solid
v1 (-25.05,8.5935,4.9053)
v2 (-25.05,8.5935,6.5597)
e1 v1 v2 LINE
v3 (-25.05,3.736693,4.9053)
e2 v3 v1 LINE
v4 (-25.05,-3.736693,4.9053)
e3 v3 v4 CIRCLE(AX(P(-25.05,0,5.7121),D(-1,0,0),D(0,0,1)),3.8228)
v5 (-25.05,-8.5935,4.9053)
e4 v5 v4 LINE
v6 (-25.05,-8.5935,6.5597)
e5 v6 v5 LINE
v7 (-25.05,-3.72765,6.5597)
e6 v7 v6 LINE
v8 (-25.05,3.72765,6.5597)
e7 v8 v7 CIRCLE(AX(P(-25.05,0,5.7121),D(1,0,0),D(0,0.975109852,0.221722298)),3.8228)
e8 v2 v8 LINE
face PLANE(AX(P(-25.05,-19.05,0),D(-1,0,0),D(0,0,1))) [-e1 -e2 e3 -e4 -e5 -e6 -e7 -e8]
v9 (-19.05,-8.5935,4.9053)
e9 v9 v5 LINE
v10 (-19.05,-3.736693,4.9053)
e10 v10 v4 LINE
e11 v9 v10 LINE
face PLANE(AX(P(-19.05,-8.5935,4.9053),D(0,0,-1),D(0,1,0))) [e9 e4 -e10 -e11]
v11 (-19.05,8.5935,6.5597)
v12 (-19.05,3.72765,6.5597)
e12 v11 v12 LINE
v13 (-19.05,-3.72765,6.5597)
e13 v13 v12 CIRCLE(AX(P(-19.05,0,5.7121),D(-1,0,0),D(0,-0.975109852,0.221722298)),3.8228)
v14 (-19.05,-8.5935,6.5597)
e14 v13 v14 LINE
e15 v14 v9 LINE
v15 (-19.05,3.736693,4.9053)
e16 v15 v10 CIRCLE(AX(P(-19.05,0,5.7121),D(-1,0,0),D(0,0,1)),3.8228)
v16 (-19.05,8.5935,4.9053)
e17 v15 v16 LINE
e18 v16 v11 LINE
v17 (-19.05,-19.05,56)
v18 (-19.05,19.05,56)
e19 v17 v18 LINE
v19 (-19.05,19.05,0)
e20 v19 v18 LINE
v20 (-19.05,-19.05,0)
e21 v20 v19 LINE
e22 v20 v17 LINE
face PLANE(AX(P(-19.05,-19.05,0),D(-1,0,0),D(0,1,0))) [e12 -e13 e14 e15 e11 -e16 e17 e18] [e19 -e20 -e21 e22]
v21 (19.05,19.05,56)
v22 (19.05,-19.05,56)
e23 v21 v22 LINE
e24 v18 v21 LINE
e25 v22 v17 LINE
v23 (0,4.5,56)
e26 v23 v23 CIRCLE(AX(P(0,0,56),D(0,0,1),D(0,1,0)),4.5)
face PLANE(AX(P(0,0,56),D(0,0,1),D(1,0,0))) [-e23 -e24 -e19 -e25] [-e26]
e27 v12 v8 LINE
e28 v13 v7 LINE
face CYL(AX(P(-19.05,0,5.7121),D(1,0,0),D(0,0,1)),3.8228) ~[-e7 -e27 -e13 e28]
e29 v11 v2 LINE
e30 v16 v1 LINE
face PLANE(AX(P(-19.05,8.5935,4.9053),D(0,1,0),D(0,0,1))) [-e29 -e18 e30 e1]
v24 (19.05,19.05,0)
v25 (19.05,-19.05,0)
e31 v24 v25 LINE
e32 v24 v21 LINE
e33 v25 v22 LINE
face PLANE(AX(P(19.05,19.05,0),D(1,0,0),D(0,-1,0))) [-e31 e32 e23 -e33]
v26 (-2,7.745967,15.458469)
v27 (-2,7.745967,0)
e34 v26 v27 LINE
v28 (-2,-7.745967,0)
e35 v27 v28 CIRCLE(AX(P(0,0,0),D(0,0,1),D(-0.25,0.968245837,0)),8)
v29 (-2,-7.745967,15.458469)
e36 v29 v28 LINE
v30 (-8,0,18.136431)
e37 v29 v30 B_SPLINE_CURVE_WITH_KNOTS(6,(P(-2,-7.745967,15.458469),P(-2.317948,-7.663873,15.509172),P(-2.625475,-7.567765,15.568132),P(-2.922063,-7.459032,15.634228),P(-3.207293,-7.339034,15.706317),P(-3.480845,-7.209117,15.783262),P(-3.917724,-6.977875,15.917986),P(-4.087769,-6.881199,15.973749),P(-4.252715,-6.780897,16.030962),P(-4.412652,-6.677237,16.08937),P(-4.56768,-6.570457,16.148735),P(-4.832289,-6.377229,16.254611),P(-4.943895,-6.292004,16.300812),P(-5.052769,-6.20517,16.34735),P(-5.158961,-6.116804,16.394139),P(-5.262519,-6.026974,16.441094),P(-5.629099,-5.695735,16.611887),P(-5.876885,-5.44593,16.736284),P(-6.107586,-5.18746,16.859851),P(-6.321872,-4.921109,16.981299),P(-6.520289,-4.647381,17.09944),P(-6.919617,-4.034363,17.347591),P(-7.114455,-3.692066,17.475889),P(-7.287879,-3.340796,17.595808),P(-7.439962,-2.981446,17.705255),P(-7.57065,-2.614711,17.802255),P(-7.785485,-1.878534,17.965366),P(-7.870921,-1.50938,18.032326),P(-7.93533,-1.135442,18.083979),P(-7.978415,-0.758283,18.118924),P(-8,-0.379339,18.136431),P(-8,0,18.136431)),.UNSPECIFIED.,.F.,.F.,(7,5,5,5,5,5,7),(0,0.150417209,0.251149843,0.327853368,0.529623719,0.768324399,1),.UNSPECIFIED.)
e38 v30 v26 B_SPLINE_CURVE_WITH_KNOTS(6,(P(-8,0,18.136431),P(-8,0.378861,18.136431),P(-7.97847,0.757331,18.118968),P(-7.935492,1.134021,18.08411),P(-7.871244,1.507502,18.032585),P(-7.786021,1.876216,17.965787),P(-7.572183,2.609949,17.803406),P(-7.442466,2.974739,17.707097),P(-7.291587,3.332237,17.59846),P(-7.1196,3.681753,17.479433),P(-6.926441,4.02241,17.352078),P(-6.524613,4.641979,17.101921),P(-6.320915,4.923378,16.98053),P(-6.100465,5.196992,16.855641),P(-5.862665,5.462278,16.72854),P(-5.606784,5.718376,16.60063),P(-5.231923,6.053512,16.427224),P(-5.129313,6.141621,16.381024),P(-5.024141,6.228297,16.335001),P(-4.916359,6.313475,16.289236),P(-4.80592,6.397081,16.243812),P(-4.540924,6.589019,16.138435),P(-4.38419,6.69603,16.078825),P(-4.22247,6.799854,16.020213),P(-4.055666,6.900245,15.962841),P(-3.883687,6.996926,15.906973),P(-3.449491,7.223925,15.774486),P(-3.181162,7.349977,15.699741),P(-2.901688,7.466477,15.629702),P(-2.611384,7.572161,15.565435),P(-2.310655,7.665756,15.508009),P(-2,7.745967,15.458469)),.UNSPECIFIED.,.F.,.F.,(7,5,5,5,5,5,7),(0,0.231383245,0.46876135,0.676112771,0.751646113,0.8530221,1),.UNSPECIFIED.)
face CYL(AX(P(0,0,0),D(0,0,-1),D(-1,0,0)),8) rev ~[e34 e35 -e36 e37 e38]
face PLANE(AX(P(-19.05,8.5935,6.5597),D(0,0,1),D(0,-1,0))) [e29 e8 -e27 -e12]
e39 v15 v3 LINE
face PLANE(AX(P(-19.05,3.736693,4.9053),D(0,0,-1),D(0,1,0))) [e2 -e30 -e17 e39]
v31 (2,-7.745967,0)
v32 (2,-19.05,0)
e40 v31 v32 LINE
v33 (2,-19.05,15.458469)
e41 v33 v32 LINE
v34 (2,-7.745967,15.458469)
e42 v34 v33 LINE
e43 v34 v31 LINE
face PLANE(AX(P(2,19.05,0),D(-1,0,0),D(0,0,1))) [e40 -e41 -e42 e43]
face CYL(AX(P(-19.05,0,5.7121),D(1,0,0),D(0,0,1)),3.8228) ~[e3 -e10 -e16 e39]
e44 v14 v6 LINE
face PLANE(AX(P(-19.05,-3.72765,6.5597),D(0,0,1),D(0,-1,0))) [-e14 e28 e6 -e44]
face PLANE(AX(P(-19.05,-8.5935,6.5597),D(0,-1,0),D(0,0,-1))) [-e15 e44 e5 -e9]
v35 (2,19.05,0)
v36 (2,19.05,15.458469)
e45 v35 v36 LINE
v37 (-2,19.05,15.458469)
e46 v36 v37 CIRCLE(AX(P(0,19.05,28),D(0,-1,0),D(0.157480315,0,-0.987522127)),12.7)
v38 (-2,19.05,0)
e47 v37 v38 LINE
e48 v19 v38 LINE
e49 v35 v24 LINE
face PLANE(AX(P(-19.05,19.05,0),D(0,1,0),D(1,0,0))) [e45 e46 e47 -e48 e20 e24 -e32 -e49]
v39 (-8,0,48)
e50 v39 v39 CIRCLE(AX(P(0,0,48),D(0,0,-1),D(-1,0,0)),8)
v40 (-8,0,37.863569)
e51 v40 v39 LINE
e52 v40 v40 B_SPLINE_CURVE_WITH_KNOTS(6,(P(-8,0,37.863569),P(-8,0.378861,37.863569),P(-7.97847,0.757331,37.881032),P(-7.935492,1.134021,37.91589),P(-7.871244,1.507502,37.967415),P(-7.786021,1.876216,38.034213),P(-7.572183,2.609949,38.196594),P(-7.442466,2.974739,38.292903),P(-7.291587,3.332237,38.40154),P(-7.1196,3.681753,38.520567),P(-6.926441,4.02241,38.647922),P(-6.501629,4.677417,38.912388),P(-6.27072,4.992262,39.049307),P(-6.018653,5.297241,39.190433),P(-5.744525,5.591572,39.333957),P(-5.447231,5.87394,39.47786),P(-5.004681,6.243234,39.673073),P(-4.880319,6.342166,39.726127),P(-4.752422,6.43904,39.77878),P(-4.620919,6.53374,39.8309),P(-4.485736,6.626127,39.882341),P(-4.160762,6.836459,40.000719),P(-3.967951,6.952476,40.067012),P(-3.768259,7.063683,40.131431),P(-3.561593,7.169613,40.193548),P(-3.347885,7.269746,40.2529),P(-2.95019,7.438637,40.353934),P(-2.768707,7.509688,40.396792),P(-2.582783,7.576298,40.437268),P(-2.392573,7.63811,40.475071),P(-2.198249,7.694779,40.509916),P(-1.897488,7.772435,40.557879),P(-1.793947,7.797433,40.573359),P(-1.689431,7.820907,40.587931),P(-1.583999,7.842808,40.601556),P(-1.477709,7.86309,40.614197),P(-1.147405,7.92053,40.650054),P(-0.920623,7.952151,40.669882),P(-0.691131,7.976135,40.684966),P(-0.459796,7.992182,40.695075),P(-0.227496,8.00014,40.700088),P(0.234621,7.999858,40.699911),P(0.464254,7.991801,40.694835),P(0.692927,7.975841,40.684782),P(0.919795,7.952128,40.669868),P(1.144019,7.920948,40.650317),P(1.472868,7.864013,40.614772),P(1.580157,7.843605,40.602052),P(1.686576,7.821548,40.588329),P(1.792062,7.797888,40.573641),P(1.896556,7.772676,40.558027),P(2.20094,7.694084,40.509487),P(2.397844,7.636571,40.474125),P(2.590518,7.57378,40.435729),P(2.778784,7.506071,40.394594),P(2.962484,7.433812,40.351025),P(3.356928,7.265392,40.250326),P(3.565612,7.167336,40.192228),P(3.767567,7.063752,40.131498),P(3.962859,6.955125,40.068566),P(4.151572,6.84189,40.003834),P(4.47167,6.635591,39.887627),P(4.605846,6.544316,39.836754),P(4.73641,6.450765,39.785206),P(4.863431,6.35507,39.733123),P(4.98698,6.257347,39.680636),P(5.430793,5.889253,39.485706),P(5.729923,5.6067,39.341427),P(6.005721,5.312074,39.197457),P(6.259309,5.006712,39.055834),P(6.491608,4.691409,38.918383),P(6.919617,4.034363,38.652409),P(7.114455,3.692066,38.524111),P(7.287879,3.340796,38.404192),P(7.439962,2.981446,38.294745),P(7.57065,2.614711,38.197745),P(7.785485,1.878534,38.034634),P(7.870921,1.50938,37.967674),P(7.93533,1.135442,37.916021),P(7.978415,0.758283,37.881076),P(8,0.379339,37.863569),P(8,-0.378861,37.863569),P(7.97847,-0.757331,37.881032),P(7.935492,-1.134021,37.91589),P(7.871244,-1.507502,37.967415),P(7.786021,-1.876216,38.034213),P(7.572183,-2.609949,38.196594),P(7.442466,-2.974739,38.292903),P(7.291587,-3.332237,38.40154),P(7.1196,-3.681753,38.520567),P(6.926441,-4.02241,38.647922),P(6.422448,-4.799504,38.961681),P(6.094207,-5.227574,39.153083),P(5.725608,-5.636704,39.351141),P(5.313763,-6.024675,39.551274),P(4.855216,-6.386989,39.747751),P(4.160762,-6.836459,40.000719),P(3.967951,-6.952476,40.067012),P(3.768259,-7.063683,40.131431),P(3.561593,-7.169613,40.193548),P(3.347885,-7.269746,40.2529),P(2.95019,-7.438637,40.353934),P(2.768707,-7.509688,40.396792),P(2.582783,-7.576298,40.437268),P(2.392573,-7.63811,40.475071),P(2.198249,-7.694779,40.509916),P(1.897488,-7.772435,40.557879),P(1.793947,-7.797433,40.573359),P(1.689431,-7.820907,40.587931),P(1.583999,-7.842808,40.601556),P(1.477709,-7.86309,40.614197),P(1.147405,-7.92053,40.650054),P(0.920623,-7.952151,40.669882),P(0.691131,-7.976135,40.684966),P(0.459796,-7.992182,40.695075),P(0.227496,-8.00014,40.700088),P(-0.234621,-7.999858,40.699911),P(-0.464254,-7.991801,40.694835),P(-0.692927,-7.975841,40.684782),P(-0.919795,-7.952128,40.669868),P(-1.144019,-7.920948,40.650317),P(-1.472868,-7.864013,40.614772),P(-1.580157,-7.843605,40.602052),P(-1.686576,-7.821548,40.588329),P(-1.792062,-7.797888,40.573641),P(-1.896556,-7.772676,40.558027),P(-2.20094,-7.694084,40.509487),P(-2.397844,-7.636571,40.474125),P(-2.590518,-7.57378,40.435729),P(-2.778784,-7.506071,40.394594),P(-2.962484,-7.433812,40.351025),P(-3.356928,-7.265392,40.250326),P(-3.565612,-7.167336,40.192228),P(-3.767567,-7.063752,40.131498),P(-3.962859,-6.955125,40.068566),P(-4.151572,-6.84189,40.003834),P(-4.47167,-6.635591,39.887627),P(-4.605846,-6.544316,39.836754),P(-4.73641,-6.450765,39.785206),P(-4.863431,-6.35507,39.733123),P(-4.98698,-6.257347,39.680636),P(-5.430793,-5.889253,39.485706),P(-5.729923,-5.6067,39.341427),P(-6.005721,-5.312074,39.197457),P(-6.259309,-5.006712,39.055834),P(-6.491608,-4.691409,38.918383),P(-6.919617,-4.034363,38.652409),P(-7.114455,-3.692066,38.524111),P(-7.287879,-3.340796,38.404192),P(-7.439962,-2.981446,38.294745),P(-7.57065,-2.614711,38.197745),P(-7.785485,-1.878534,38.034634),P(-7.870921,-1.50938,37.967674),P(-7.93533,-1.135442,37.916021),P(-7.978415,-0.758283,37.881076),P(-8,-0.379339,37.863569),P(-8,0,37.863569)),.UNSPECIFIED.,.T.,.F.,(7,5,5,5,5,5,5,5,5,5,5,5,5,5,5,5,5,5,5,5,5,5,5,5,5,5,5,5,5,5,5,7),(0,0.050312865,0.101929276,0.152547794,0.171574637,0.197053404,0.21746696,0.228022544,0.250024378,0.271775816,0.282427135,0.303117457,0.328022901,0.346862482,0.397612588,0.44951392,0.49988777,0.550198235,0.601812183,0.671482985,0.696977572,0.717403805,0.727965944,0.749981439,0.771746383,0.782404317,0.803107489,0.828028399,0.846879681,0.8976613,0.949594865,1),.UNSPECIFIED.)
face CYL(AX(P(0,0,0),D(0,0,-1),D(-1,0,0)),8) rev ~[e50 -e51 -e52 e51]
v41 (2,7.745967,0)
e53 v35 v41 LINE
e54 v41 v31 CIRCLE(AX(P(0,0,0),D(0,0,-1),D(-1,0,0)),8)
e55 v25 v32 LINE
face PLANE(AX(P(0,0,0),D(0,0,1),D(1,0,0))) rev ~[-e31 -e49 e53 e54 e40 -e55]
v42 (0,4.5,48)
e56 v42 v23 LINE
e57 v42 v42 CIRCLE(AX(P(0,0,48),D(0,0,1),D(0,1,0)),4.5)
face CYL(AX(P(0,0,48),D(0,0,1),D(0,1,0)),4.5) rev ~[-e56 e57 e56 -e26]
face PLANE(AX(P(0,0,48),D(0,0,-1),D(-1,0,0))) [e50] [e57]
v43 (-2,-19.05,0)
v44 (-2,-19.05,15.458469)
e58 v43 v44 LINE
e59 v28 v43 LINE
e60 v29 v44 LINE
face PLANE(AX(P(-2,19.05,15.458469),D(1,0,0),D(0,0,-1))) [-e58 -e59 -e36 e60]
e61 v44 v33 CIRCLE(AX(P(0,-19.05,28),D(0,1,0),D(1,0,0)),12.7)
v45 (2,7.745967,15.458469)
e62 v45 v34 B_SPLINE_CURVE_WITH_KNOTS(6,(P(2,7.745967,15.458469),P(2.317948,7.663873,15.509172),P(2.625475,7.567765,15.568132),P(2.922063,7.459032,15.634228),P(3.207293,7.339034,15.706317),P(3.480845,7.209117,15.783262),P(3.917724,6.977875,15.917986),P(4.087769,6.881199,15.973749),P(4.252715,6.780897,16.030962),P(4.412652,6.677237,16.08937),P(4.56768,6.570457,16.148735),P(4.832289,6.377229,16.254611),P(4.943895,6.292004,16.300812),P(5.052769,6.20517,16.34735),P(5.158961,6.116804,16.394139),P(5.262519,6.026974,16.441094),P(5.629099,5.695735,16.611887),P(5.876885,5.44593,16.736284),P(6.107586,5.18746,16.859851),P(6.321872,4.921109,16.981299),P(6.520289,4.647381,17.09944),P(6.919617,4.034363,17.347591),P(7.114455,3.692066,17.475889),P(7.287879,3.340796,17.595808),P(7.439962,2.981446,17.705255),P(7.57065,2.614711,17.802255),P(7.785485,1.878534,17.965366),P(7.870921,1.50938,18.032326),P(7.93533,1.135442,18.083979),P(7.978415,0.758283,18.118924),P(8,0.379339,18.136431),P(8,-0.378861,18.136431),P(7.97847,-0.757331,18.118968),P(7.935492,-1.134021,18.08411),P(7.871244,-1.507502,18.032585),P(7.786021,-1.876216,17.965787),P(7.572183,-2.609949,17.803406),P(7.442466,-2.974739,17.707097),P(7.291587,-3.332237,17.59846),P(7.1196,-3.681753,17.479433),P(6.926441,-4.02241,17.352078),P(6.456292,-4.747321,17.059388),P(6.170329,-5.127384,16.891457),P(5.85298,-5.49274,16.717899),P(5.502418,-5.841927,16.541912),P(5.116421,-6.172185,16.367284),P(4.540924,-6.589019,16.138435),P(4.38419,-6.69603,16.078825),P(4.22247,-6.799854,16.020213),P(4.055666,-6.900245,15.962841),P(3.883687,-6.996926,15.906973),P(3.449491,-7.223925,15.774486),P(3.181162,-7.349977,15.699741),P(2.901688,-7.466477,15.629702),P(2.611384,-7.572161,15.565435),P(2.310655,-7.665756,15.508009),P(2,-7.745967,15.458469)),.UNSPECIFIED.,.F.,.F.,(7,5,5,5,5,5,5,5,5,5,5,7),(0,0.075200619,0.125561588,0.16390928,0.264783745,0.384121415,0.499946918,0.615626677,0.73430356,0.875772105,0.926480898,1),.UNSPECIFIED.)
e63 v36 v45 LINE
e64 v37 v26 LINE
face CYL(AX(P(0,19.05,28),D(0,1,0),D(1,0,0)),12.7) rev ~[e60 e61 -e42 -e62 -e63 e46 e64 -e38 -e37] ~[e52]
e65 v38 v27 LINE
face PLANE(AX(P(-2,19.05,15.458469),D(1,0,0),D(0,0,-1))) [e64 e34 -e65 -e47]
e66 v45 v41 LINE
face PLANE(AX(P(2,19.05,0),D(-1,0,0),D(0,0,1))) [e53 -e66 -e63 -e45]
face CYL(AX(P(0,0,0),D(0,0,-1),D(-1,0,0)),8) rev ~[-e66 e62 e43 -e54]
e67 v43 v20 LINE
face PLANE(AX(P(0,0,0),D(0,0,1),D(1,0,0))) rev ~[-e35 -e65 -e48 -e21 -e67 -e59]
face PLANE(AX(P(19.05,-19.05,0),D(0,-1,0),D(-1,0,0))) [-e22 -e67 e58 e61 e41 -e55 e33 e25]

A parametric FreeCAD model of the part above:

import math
import FreeCAD as App
import Part
import Sketcher
from FreeCAD import Vector
Q = App.Units.Quantity

doc = App.newDocument("Part")
params = doc.addObject("Spreadsheet::Sheet", "Params")
for row, (alias, value) in enumerate([
    ("sketch1_width", "38.1 mm"),
    ("pad1_length", "56 mm"),
    ("sketch2_radius", "12.7 mm"),
    ("sketch2_width", "4 mm"),
    ("sketch3_diameter", "9 mm"),
    ("hole_diameter", "9 mm"),
    ("sketch4_diameter", "16 mm"),
    ("pocket2_length", "48 mm"),
    ("pad2_length", "6 mm"),
], start=1):
    params.set(f"A{row}", alias)
    params.set(f"B{row}", "=" + value)
    params.setAlias(f"B{row}", alias)

body = doc.addObject("PartDesign::Body", "Body")

sketch1 = doc.addObject("Sketcher::SketchObject", "Sketch")
body.addObject(sketch1)
sketch1.AttachmentSupport = (doc.XY_Plane, [""])
sketch1.MapMode = "FlatFace"
sketch1.addGeometry([
    Part.LineSegment(Vector(19.05, 19.05, 0), Vector(-19.05, 19.05, 0)),
    Part.LineSegment(Vector(-19.05, 19.05, 0), Vector(-19.05, -19.05, 0)),
    Part.LineSegment(Vector(-19.05, -19.05, 0), Vector(19.05, -19.05, 0)),
    Part.LineSegment(Vector(19.05, -19.05, 0), Vector(19.05, 19.05, 0)),
], False)
sketch1.addConstraint([
    Sketcher.Constraint("Coincident", 0, 2, 1, 1),
    Sketcher.Constraint("Coincident", 1, 2, 2, 1),
    Sketcher.Constraint("Coincident", 2, 2, 3, 1),
    Sketcher.Constraint("Coincident", 3, 2, 0, 1),
    Sketcher.Constraint("Horizontal", 0),
    Sketcher.Constraint("Vertical", 1),
    Sketcher.Constraint("Horizontal", 2),
    Sketcher.Constraint("Vertical", 3),
    Sketcher.Constraint("Symmetric", 0, 2, 2, 2, -1, 1),
    Sketcher.Constraint("Equal", 2, 1),
    Sketcher.Constraint("DistanceX", 0, 2, 0, 1, Q("38.1 mm")),
])
sketch1.setExpression("Constraints[10]", "Params.sketch1_width")
pad1 = doc.addObject("PartDesign::Pad", "Pad")
body.addObject(pad1)
pad1.Profile = sketch1
pad1.setExpression("Length", "Params.pad1_length")

sketch2 = doc.addObject("Sketcher::SketchObject", "Sketch001")
body.addObject(sketch2)
sketch2.AttachmentSupport = (doc.XZ_Plane, [""])
sketch2.MapMode = "FlatFace"
sketch2.AttachmentOffset = App.Placement(Vector(0, 0, -19.05), App.Rotation())
sketch2.addGeometry([
    Part.ArcOfCircle(Part.Circle(Vector(0, 28, 0), Vector(0, 0, 1), 12.7), math.radians(-80.939325), math.radians(260.939325)),
    Part.LineSegment(Vector(2, 15.458469, 0), Vector(2, 0, 0)),
    Part.LineSegment(Vector(2, 0, 0), Vector(-2, 0, 0)),
    Part.LineSegment(Vector(-2, 0, 0), Vector(-2, 15.458469, 0)),
], False)
sketch2.addConstraint([
    Sketcher.Constraint("Coincident", 0, 1, 1, 1),
    Sketcher.Constraint("Coincident", 1, 2, 2, 1),
    Sketcher.Constraint("Coincident", 2, 2, 3, 1),
    Sketcher.Constraint("Coincident", 3, 2, 0, 2),
    Sketcher.Constraint("Vertical", 1),
    Sketcher.Constraint("Horizontal", 2),
    Sketcher.Constraint("Vertical", 3),
    Sketcher.Constraint("Symmetric", 1, 2, 2, 2, -1, 1),
    Sketcher.Constraint("PointOnObject", 0, 3, -2),
    Sketcher.Constraint("Radius", 0, Q("12.7 mm")),
    Sketcher.Constraint("DistanceX", 2, 2, 2, 1, Q("4 mm")),
    Sketcher.Constraint("DistanceY", -1, 1, 0, 3, Q("28 mm")),
])
sketch2.setExpression("Constraints[9]", "Params.sketch2_radius")
sketch2.setExpression("Constraints[10]", "Params.sketch2_width")
pocket1 = doc.addObject("PartDesign::Pocket", "Pocket")
body.addObject(pocket1)
pocket1.Profile = sketch2
pocket1.Type = "ThroughAll"
pocket1.Reversed = True

sketch3 = doc.addObject("Sketcher::SketchObject", "Sketch002")
body.addObject(sketch3)
sketch3.AttachmentSupport = (doc.XY_Plane, [""])
sketch3.MapMode = "FlatFace"
sketch3.AttachmentOffset = App.Placement(Vector(0, 0, 48), App.Rotation())
sketch3.addGeometry(Part.Circle(Vector(0, 0, 0), Vector(0, 0, 1), 4.5), False)
sketch3.addConstraint([
    Sketcher.Constraint("Coincident", 0, 3, -1, 1),
    Sketcher.Constraint("Diameter", 0, Q("9 mm")),
])
sketch3.setExpression("Constraints[1]", "Params.sketch3_diameter")
doc.recompute()
hole = doc.addObject("PartDesign::Hole", "Hole")
body.addObject(hole)
hole.Profile = sketch3
hole.ThreadType = "None"
hole.setExpression("Diameter", "Params.hole_diameter")
hole.DepthType = "ThroughAll"
hole.Reversed = True

sketch4 = doc.addObject("Sketcher::SketchObject", "Sketch003")
body.addObject(sketch4)
sketch4.AttachmentSupport = (doc.XY_Plane, [""])
sketch4.MapMode = "FlatFace"
sketch4.addGeometry(Part.Circle(Vector(0, 0, 0), Vector(0, 0, 1), 8), False)
sketch4.addConstraint([
    Sketcher.Constraint("Coincident", 0, 3, -1, 1),
    Sketcher.Constraint("Diameter", 0, Q("16 mm")),
])
sketch4.setExpression("Constraints[1]", "Params.sketch4_diameter")
pocket2 = doc.addObject("PartDesign::Pocket", "Pocket001")
body.addObject(pocket2)
pocket2.Profile = sketch4
pocket2.setExpression("Length", "Params.pocket2_length")
pocket2.Reversed = True

sketch5 = doc.addObject("Sketcher::SketchObject", "Sketch004")
body.addObject(sketch5)
sketch5.AttachmentSupport = (doc.YZ_Plane, [""])
sketch5.MapMode = "FlatFace"
sketch5.AttachmentOffset = App.Placement(Vector(0, 0, -19.05), App.Rotation())
sketch5.addGeometry([
    Part.ArcOfCircle(Part.Circle(Vector(0, 5.7121, 0), Vector(0, 0, 1), 3.8228), math.radians(12.810212), math.radians(167.189788)),
    Part.LineSegment(Vector(3.72765, 6.5597, 0), Vector(8.5935, 6.5597, 0)),
    Part.LineSegment(Vector(8.5935, 6.5597, 0), Vector(8.5935, 4.9053, 0)),
    Part.LineSegment(Vector(8.5935, 4.9053, 0), Vector(3.736693, 4.9053, 0)),
    Part.ArcOfCircle(Part.Circle(Vector(0, 5.7121, 0), Vector(0, 0, 1), 3.8228), math.radians(-167.816138), math.radians(-12.183862)),
    Part.LineSegment(Vector(-3.736693, 4.9053, 0), Vector(-8.5935, 4.9053, 0)),
    Part.LineSegment(Vector(-8.5935, 4.9053, 0), Vector(-8.5935, 6.5597, 0)),
    Part.LineSegment(Vector(-8.5935, 6.5597, 0), Vector(-3.72765, 6.5597, 0)),
], False)
sketch5.addConstraint([
    Sketcher.Constraint("Coincident", 0, 1, 1, 1),
    Sketcher.Constraint("Coincident", 1, 2, 2, 1),
    Sketcher.Constraint("Coincident", 2, 2, 3, 1),
    Sketcher.Constraint("Coincident", 3, 2, 4, 2),
    Sketcher.Constraint("Coincident", 4, 1, 5, 1),
    Sketcher.Constraint("Coincident", 5, 2, 6, 1),
    Sketcher.Constraint("Coincident", 6, 2, 7, 1),
    Sketcher.Constraint("Coincident", 7, 2, 0, 2),
    Sketcher.Constraint("Horizontal", 1),
    Sketcher.Constraint("Vertical", 2),
    Sketcher.Constraint("Horizontal", 3),
    Sketcher.Constraint("Horizontal", 5),
    Sketcher.Constraint("Vertical", 6),
    Sketcher.Constraint("Horizontal", 7),
    Sketcher.Constraint("Coincident", 4, 3, 0, 3),
    Sketcher.Constraint("Equal", 0, 4),
    Sketcher.Constraint("Symmetric", 3, 2, 4, 1, -2),
    Sketcher.Constraint("Symmetric", 1, 2, 6, 2, -2),
    Sketcher.Constraint("Radius", 0, Q("3.8228 mm")),
    Sketcher.Constraint("DistanceX", 1, 1, 1, 2, Q("4.8659 mm")),
    Sketcher.Constraint("DistanceX", 3, 2, 3, 1, Q("4.8568 mm")),
    Sketcher.Constraint("DistanceY", 2, 2, 2, 1, Q("1.6544 mm")),
    Sketcher.Constraint("DistanceY", -1, 1, 0, 3, Q("5.712 mm")),
])
pad2 = doc.addObject("PartDesign::Pad", "Pad001")
body.addObject(pad2)
pad2.Profile = sketch5
pad2.setExpression("Length", "Params.pad2_length")
pad2.Reversed = True

doc.recompute()
